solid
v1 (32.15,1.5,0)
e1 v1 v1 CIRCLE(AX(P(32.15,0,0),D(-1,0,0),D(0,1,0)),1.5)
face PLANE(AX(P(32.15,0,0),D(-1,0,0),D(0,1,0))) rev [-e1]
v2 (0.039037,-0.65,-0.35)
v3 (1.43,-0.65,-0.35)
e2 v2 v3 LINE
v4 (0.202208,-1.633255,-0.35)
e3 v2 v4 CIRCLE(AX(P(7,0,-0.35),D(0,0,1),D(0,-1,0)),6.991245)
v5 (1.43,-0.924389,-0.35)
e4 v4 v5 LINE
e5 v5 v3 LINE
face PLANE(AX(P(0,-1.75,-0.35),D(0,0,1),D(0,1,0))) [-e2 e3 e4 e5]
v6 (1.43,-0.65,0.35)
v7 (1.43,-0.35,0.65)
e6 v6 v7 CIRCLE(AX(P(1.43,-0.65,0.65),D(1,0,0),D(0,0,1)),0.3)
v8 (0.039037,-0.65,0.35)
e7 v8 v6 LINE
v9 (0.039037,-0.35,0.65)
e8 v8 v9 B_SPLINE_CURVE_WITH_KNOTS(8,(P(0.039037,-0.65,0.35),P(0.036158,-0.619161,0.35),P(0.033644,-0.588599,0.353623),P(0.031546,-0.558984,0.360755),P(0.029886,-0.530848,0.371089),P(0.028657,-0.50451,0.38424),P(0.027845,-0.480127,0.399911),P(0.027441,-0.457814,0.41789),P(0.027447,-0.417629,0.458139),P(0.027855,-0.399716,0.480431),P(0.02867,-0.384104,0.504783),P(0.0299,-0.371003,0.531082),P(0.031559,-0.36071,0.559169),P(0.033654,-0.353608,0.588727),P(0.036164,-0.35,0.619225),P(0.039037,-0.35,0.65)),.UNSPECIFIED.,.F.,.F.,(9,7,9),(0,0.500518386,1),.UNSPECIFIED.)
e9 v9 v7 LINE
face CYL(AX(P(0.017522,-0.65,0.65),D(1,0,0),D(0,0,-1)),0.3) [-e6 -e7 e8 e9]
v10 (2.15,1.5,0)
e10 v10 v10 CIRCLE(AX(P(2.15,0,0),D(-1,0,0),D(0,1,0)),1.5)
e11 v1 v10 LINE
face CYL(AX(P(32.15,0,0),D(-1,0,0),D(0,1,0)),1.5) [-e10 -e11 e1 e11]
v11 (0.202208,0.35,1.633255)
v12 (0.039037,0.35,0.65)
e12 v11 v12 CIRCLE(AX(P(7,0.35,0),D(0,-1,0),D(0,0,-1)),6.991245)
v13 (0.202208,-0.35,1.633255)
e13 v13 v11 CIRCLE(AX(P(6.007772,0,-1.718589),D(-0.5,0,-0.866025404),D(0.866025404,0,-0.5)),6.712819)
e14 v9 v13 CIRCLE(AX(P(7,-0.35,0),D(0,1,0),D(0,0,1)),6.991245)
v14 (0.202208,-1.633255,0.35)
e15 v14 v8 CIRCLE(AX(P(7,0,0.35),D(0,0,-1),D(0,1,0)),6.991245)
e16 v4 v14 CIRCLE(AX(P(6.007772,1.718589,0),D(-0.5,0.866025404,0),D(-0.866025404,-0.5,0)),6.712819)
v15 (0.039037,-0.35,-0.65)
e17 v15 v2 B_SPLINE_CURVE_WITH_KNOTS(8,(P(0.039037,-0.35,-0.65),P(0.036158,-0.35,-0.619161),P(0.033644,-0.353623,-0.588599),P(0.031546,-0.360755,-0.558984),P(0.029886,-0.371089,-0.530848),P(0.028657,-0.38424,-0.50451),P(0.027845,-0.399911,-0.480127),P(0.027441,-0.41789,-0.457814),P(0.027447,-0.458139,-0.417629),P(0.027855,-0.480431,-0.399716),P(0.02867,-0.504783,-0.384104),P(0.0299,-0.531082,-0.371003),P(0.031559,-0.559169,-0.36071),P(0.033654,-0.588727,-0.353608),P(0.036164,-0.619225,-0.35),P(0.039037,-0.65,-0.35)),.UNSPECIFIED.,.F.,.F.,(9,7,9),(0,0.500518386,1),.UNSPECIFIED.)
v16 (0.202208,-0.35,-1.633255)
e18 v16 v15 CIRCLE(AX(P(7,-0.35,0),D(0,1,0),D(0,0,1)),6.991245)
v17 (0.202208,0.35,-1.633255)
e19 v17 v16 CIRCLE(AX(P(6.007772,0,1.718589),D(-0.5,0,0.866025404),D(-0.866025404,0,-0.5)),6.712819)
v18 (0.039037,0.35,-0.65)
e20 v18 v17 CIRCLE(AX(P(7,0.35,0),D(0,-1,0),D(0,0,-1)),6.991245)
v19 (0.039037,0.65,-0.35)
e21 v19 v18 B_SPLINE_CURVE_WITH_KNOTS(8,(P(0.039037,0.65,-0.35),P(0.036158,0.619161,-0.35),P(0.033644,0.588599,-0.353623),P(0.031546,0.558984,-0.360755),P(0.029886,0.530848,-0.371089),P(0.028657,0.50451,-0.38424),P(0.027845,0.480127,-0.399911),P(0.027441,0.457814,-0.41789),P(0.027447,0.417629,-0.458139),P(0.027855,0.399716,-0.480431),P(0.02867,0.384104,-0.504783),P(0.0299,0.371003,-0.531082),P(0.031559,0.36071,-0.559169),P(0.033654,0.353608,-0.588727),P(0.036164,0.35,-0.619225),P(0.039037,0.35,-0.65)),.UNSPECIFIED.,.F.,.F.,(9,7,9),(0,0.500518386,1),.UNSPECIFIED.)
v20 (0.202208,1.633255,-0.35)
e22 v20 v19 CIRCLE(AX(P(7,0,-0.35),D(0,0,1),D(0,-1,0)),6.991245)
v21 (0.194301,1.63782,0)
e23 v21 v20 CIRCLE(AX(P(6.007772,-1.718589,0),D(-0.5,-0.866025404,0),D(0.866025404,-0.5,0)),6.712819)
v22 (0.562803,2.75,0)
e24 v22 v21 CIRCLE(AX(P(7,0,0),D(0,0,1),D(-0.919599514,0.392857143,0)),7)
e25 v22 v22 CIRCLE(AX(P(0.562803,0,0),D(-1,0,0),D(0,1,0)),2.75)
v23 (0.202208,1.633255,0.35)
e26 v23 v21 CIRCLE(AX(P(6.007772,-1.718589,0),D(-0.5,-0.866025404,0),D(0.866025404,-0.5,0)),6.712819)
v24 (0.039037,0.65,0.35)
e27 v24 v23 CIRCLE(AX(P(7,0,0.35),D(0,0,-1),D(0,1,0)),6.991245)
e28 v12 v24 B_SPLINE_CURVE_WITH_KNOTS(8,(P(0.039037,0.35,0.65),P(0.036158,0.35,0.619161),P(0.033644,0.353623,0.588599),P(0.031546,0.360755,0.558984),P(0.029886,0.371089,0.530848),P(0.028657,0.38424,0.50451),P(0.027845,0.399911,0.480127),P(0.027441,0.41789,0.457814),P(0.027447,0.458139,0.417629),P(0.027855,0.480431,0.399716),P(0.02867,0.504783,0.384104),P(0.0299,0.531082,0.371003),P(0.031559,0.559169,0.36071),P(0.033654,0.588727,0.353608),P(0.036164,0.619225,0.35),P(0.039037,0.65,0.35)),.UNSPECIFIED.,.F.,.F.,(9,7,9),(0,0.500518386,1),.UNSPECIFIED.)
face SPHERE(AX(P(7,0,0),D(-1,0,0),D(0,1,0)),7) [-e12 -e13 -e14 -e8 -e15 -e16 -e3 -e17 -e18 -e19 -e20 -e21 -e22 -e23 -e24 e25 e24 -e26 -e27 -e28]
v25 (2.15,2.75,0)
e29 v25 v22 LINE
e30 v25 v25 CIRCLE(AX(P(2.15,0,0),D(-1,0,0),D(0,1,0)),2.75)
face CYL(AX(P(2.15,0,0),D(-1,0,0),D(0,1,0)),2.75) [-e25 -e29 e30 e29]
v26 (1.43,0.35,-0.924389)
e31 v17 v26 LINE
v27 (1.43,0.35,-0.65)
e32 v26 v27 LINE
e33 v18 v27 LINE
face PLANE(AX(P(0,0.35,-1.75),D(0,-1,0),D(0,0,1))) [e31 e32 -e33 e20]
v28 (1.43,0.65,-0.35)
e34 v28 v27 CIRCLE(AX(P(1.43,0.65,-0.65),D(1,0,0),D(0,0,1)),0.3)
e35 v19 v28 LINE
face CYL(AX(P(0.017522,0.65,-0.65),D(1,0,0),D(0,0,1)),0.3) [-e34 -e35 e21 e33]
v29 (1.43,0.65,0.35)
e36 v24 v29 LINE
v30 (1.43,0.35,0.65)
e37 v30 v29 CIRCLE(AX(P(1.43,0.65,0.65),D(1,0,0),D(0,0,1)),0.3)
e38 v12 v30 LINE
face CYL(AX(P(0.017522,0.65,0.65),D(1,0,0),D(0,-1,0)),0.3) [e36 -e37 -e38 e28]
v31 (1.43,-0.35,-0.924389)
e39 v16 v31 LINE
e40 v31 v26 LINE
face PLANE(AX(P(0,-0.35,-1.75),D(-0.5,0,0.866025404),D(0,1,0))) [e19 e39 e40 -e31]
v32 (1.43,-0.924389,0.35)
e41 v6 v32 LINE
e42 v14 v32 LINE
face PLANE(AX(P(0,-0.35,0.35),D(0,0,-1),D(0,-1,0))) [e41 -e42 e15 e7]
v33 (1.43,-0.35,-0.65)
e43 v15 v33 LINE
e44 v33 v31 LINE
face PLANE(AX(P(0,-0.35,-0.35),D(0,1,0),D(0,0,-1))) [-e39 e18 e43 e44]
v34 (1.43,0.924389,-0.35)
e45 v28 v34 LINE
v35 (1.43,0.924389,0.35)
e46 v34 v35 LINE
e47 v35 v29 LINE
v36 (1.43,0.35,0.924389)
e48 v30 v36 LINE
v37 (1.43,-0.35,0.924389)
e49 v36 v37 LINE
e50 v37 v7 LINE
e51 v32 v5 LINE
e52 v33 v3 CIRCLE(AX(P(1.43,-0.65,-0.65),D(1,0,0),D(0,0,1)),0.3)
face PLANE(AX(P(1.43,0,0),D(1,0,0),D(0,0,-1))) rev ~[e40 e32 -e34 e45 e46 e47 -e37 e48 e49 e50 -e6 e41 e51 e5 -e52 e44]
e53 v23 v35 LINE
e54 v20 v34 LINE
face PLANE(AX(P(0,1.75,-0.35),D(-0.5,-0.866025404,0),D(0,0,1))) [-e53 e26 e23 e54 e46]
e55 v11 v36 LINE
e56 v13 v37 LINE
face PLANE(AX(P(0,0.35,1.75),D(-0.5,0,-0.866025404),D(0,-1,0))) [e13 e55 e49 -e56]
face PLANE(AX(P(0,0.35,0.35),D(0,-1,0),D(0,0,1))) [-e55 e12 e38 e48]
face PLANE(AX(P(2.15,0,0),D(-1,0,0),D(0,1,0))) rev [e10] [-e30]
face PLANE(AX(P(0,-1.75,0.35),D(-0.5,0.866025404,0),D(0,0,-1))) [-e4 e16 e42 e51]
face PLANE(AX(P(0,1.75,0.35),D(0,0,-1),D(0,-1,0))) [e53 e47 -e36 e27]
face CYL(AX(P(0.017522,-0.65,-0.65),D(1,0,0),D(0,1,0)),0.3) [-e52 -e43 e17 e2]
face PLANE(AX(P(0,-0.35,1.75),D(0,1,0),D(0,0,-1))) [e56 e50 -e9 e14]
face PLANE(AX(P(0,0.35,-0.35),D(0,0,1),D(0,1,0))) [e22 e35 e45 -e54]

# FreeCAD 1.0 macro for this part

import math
import FreeCAD as App
import Part
import Sketcher

V = App.Vector
Q = App.Units.Quantity


def edges_at(feature, points):
    """Names of the edges that pass closest to the given points."""
    edges = feature.Shape.Edges
    near = lambda p: min(range(len(edges)), key=lambda i: edges[i].distToShape(Part.Vertex(*p))[0])
    return sorted({f"Edge{near(p) + 1}" for p in points})


def faces_at(feature, points):
    """Names of the faces that lie closest to the given points."""
    faces = feature.Shape.Faces
    near = lambda p: min(range(len(faces)), key=lambda i: faces[i].distToShape(Part.Vertex(*p))[0])
    return sorted({f"Face{near(p) + 1}" for p in points})

doc = App.newDocument("Part")
params = doc.addObject("Spreadsheet::Sheet", "Params")
for row, (alias, value) in enumerate([
    ("sketch1_radius", "7 mm"),
    ("sketch1_width", "30 mm"),
    ("sketch1_height", "1.5 mm"),
    ("sketch1_width2", "32.15 mm"),
    ("sketch1_height2", "1.25 mm"),
    ("revolution_angle", "360 deg"),
    ("sketch2_width", "1.4 mm"),
    ("sketch2_width2", "0.7 mm"),
    ("pocket1_length", "1.43 mm"),
    ("fillet_radius", "0.3 mm"),
    ("draft_angle", "30 deg"),
], start=1):
    params.set(f"A{row}", alias)
    params.set(f"B{row}", "=" + value)
    params.setAlias(f"B{row}", alias)

body = doc.addObject("PartDesign::Body", "Body")

sketch1 = body.newObject("Sketcher::SketchObject", "Sketch")
sketch1.AttachmentSupport = (doc.getObject("XY_Plane"), [""])
sketch1.MapMode = "FlatFace"
sketch1.addGeometry(Part.LineSegment(V(32.1, 1.5, 0), V(2.1, 1.5, 0)), False)
sketch1.addGeometry(Part.LineSegment(V(2.1, 1.5, 0), V(2.1, 2.8, 0)), False)
sketch1.addGeometry(Part.LineSegment(V(2.1, 2.8, 0), V(0.6, 2.8, 0)), False)
sketch1.addGeometry(Part.ArcOfCircle(Part.Circle(V(7, 0, 0), V(0, 0, 1), 7), math.radians(157), math.radians(180)), False)
sketch1.addGeometry(Part.LineSegment(V(0, 0, 0), V(32.1, 0, 0)), False)
sketch1.addGeometry(Part.LineSegment(V(32.1, 0, 0), V(32.1, 1.5, 0)), False)
sketch1.addConstraint(Sketcher.Constraint("Coincident", 0, 2, 1, 1))
sketch1.addConstraint(Sketcher.Constraint("Coincident", 1, 2, 2, 1))
sketch1.addConstraint(Sketcher.Constraint("Coincident", 2, 2, 3, 1))
sketch1.addConstraint(Sketcher.Constraint("Coincident", 3, 2, 4, 1))
sketch1.addConstraint(Sketcher.Constraint("Coincident", 4, 2, 5, 1))
sketch1.addConstraint(Sketcher.Constraint("Coincident", 5, 2, 0, 1))
sketch1.addConstraint(Sketcher.Constraint("Horizontal", 0))
sketch1.addConstraint(Sketcher.Constraint("Vertical", 1))
sketch1.addConstraint(Sketcher.Constraint("Horizontal", 2))
sketch1.addConstraint(Sketcher.Constraint("Horizontal", 4))
sketch1.addConstraint(Sketcher.Constraint("Vertical", 5))
sketch1.addConstraint(Sketcher.Constraint("Coincident", 3, 2, -1, 1))
sketch1.addConstraint(Sketcher.Constraint("PointOnObject", 3, 3, -1))
sketch1.addConstraint(Sketcher.Constraint("Radius", 3, Q("7 mm")))
sketch1.addConstraint(Sketcher.Constraint("DistanceX", 0, 2, 0, 1, Q("30 mm")))
sketch1.addConstraint(Sketcher.Constraint("DistanceY", 5, 1, 5, 2, Q("1.5 mm")))
sketch1.addConstraint(Sketcher.Constraint("DistanceX", 4, 1, 4, 2, Q("32.15 mm")))
sketch1.addConstraint(Sketcher.Constraint("DistanceY", 1, 1, 1, 2, Q("1.25 mm")))
sketch1.setExpression("Constraints[13]", "Params.sketch1_radius")
sketch1.setExpression("Constraints[14]", "Params.sketch1_width")
sketch1.setExpression("Constraints[15]", "Params.sketch1_height")
sketch1.setExpression("Constraints[16]", "Params.sketch1_width2")
sketch1.setExpression("Constraints[17]", "Params.sketch1_height2")
revolution = body.newObject("PartDesign::Revolution", "Revolution")
revolution.Profile = sketch1
revolution.ReferenceAxis = (sketch1, ["H_Axis"])
revolution.setExpression("Angle", "Params.revolution_angle")

sketch2 = body.newObject("Sketcher::SketchObject", "Sketch001")
sketch2.AttachmentSupport = (doc.getObject("YZ_Plane"), [""])
sketch2.MapMode = "FlatFace"
sketch2.addGeometry(Part.LineSegment(V(0.3, -0.3, 0), V(1.8, -0.3, 0)), False)
sketch2.addGeometry(Part.LineSegment(V(1.8, -0.3, 0), V(1.8, 0.3, 0)), False)
sketch2.addGeometry(Part.LineSegment(V(1.8, 0.3, 0), V(0.3, 0.3, 0)), False)
sketch2.addGeometry(Part.LineSegment(V(0.3, 0.3, 0), V(0.3, 1.8, 0)), False)
sketch2.addGeometry(Part.LineSegment(V(0.3, 1.8, 0), V(-0.3, 1.8, 0)), False)
sketch2.addGeometry(Part.LineSegment(V(-0.3, 1.8, 0), V(-0.3, 0.3, 0)), False)
sketch2.addGeometry(Part.LineSegment(V(-0.3, 0.3, 0), V(-1.8, 0.3, 0)), False)
sketch2.addGeometry(Part.LineSegment(V(-1.8, 0.3, 0), V(-1.8, -0.3, 0)), False)
sketch2.addGeometry(Part.LineSegment(V(-1.8, -0.3, 0), V(-0.3, -0.3, 0)), False)
sketch2.addGeometry(Part.LineSegment(V(-0.3, -0.3, 0), V(-0.3, -1.8, 0)), False)
sketch2.addGeometry(Part.LineSegment(V(-0.3, -1.8, 0), V(0.3, -1.8, 0)), False)
sketch2.addGeometry(Part.LineSegment(V(0.3, -1.8, 0), V(0.3, -0.3, 0)), False)
sketch2.addConstraint(Sketcher.Constraint("Coincident", 0, 2, 1, 1))
sketch2.addConstraint(Sketcher.Constraint("Coincident", 1, 2, 2, 1))
sketch2.addConstraint(Sketcher.Constraint("Coincident", 2, 2, 3, 1))
sketch2.addConstraint(Sketcher.Constraint("Coincident", 3, 2, 4, 1))
sketch2.addConstraint(Sketcher.Constraint("Coincident", 4, 2, 5, 1))
sketch2.addConstraint(Sketcher.Constraint("Coincident", 5, 2, 6, 1))
sketch2.addConstraint(Sketcher.Constraint("Coincident", 6, 2, 7, 1))
sketch2.addConstraint(Sketcher.Constraint("Coincident", 7, 2, 8, 1))
sketch2.addConstraint(Sketcher.Constraint("Coincident", 8, 2, 9, 1))
sketch2.addConstraint(Sketcher.Constraint("Coincident", 9, 2, 10, 1))
sketch2.addConstraint(Sketcher.Constraint("Coincident", 10, 2, 11, 1))
sketch2.addConstraint(Sketcher.Constraint("Coincident", 11, 2, 0, 1))
sketch2.addConstraint(Sketcher.Constraint("Horizontal", 0))
sketch2.addConstraint(Sketcher.Constraint("Vertical", 1))
sketch2.addConstraint(Sketcher.Constraint("Horizontal", 2))
sketch2.addConstraint(Sketcher.Constraint("Vertical", 3))
sketch2.addConstraint(Sketcher.Constraint("Horizontal", 4))
sketch2.addConstraint(Sketcher.Constraint("Vertical", 5))
sketch2.addConstraint(Sketcher.Constraint("Horizontal", 6))
sketch2.addConstraint(Sketcher.Constraint("Vertical", 7))
sketch2.addConstraint(Sketcher.Constraint("Horizontal", 8))
sketch2.addConstraint(Sketcher.Constraint("Vertical", 9))
sketch2.addConstraint(Sketcher.Constraint("Horizontal", 10))
sketch2.addConstraint(Sketcher.Constraint("Vertical", 11))
sketch2.addConstraint(Sketcher.Constraint("Symmetric", 0, 2, 6, 2, -1, 1))
sketch2.addConstraint(Sketcher.Constraint("Symmetric", 2, 2, 8, 2, -1, 1))
sketch2.addConstraint(Sketcher.Constraint("Symmetric", 4, 2, 10, 2, -1, 1))
sketch2.addConstraint(Sketcher.Constraint("Symmetric", 2, 2, 5, 2, -2))
sketch2.addConstraint(Sketcher.Constraint("Equal", 10, 1))
sketch2.addConstraint(Sketcher.Constraint("Equal", 8, 3))
sketch2.addConstraint(Sketcher.Constraint("DistanceX", 0, 1, 0, 2, Q("1.4 mm")))
sketch2.addConstraint(Sketcher.Constraint("DistanceX", 4, 2, 4, 1, Q("0.7 mm")))
sketch2.setExpression("Constraints[30]", "Params.sketch2_width")
sketch2.setExpression("Constraints[31]", "Params.sketch2_width2")
pocket1 = body.newObject("PartDesign::Pocket", "Pocket")
pocket1.Profile = sketch2
pocket1.setExpression("Length", "Params.pocket1_length")
pocket1.Reversed = True
doc.recompute()

fillet = body.newObject("PartDesign::Fillet", "Fillet")
fillet.Base = (pocket1, edges_at(pocket1, [
    (0.724, 0.35, 0.35),
    (0.724, -0.35, 0.35),
    (0.724, -0.35, -0.35),
    (0.724, 0.35, -0.35),
]))
fillet.setExpression("Radius", "Params.fillet_radius")
doc.recompute()

draft = body.newObject("PartDesign::Draft", "Draft")
draft.Base = (fillet, faces_at(fillet, [
    (0.826, 0, 1.75),
    (0.826, 1.75, 0),
    (0.826, -1.75, 0),
    (0.826, 0, -1.75),
]))
draft.NeutralPlane = (doc.getObject("YZ_Plane"), [""])
draft.setExpression("Angle", "Params.draft_angle")
draft.Reversed = True

doc.recompute()
